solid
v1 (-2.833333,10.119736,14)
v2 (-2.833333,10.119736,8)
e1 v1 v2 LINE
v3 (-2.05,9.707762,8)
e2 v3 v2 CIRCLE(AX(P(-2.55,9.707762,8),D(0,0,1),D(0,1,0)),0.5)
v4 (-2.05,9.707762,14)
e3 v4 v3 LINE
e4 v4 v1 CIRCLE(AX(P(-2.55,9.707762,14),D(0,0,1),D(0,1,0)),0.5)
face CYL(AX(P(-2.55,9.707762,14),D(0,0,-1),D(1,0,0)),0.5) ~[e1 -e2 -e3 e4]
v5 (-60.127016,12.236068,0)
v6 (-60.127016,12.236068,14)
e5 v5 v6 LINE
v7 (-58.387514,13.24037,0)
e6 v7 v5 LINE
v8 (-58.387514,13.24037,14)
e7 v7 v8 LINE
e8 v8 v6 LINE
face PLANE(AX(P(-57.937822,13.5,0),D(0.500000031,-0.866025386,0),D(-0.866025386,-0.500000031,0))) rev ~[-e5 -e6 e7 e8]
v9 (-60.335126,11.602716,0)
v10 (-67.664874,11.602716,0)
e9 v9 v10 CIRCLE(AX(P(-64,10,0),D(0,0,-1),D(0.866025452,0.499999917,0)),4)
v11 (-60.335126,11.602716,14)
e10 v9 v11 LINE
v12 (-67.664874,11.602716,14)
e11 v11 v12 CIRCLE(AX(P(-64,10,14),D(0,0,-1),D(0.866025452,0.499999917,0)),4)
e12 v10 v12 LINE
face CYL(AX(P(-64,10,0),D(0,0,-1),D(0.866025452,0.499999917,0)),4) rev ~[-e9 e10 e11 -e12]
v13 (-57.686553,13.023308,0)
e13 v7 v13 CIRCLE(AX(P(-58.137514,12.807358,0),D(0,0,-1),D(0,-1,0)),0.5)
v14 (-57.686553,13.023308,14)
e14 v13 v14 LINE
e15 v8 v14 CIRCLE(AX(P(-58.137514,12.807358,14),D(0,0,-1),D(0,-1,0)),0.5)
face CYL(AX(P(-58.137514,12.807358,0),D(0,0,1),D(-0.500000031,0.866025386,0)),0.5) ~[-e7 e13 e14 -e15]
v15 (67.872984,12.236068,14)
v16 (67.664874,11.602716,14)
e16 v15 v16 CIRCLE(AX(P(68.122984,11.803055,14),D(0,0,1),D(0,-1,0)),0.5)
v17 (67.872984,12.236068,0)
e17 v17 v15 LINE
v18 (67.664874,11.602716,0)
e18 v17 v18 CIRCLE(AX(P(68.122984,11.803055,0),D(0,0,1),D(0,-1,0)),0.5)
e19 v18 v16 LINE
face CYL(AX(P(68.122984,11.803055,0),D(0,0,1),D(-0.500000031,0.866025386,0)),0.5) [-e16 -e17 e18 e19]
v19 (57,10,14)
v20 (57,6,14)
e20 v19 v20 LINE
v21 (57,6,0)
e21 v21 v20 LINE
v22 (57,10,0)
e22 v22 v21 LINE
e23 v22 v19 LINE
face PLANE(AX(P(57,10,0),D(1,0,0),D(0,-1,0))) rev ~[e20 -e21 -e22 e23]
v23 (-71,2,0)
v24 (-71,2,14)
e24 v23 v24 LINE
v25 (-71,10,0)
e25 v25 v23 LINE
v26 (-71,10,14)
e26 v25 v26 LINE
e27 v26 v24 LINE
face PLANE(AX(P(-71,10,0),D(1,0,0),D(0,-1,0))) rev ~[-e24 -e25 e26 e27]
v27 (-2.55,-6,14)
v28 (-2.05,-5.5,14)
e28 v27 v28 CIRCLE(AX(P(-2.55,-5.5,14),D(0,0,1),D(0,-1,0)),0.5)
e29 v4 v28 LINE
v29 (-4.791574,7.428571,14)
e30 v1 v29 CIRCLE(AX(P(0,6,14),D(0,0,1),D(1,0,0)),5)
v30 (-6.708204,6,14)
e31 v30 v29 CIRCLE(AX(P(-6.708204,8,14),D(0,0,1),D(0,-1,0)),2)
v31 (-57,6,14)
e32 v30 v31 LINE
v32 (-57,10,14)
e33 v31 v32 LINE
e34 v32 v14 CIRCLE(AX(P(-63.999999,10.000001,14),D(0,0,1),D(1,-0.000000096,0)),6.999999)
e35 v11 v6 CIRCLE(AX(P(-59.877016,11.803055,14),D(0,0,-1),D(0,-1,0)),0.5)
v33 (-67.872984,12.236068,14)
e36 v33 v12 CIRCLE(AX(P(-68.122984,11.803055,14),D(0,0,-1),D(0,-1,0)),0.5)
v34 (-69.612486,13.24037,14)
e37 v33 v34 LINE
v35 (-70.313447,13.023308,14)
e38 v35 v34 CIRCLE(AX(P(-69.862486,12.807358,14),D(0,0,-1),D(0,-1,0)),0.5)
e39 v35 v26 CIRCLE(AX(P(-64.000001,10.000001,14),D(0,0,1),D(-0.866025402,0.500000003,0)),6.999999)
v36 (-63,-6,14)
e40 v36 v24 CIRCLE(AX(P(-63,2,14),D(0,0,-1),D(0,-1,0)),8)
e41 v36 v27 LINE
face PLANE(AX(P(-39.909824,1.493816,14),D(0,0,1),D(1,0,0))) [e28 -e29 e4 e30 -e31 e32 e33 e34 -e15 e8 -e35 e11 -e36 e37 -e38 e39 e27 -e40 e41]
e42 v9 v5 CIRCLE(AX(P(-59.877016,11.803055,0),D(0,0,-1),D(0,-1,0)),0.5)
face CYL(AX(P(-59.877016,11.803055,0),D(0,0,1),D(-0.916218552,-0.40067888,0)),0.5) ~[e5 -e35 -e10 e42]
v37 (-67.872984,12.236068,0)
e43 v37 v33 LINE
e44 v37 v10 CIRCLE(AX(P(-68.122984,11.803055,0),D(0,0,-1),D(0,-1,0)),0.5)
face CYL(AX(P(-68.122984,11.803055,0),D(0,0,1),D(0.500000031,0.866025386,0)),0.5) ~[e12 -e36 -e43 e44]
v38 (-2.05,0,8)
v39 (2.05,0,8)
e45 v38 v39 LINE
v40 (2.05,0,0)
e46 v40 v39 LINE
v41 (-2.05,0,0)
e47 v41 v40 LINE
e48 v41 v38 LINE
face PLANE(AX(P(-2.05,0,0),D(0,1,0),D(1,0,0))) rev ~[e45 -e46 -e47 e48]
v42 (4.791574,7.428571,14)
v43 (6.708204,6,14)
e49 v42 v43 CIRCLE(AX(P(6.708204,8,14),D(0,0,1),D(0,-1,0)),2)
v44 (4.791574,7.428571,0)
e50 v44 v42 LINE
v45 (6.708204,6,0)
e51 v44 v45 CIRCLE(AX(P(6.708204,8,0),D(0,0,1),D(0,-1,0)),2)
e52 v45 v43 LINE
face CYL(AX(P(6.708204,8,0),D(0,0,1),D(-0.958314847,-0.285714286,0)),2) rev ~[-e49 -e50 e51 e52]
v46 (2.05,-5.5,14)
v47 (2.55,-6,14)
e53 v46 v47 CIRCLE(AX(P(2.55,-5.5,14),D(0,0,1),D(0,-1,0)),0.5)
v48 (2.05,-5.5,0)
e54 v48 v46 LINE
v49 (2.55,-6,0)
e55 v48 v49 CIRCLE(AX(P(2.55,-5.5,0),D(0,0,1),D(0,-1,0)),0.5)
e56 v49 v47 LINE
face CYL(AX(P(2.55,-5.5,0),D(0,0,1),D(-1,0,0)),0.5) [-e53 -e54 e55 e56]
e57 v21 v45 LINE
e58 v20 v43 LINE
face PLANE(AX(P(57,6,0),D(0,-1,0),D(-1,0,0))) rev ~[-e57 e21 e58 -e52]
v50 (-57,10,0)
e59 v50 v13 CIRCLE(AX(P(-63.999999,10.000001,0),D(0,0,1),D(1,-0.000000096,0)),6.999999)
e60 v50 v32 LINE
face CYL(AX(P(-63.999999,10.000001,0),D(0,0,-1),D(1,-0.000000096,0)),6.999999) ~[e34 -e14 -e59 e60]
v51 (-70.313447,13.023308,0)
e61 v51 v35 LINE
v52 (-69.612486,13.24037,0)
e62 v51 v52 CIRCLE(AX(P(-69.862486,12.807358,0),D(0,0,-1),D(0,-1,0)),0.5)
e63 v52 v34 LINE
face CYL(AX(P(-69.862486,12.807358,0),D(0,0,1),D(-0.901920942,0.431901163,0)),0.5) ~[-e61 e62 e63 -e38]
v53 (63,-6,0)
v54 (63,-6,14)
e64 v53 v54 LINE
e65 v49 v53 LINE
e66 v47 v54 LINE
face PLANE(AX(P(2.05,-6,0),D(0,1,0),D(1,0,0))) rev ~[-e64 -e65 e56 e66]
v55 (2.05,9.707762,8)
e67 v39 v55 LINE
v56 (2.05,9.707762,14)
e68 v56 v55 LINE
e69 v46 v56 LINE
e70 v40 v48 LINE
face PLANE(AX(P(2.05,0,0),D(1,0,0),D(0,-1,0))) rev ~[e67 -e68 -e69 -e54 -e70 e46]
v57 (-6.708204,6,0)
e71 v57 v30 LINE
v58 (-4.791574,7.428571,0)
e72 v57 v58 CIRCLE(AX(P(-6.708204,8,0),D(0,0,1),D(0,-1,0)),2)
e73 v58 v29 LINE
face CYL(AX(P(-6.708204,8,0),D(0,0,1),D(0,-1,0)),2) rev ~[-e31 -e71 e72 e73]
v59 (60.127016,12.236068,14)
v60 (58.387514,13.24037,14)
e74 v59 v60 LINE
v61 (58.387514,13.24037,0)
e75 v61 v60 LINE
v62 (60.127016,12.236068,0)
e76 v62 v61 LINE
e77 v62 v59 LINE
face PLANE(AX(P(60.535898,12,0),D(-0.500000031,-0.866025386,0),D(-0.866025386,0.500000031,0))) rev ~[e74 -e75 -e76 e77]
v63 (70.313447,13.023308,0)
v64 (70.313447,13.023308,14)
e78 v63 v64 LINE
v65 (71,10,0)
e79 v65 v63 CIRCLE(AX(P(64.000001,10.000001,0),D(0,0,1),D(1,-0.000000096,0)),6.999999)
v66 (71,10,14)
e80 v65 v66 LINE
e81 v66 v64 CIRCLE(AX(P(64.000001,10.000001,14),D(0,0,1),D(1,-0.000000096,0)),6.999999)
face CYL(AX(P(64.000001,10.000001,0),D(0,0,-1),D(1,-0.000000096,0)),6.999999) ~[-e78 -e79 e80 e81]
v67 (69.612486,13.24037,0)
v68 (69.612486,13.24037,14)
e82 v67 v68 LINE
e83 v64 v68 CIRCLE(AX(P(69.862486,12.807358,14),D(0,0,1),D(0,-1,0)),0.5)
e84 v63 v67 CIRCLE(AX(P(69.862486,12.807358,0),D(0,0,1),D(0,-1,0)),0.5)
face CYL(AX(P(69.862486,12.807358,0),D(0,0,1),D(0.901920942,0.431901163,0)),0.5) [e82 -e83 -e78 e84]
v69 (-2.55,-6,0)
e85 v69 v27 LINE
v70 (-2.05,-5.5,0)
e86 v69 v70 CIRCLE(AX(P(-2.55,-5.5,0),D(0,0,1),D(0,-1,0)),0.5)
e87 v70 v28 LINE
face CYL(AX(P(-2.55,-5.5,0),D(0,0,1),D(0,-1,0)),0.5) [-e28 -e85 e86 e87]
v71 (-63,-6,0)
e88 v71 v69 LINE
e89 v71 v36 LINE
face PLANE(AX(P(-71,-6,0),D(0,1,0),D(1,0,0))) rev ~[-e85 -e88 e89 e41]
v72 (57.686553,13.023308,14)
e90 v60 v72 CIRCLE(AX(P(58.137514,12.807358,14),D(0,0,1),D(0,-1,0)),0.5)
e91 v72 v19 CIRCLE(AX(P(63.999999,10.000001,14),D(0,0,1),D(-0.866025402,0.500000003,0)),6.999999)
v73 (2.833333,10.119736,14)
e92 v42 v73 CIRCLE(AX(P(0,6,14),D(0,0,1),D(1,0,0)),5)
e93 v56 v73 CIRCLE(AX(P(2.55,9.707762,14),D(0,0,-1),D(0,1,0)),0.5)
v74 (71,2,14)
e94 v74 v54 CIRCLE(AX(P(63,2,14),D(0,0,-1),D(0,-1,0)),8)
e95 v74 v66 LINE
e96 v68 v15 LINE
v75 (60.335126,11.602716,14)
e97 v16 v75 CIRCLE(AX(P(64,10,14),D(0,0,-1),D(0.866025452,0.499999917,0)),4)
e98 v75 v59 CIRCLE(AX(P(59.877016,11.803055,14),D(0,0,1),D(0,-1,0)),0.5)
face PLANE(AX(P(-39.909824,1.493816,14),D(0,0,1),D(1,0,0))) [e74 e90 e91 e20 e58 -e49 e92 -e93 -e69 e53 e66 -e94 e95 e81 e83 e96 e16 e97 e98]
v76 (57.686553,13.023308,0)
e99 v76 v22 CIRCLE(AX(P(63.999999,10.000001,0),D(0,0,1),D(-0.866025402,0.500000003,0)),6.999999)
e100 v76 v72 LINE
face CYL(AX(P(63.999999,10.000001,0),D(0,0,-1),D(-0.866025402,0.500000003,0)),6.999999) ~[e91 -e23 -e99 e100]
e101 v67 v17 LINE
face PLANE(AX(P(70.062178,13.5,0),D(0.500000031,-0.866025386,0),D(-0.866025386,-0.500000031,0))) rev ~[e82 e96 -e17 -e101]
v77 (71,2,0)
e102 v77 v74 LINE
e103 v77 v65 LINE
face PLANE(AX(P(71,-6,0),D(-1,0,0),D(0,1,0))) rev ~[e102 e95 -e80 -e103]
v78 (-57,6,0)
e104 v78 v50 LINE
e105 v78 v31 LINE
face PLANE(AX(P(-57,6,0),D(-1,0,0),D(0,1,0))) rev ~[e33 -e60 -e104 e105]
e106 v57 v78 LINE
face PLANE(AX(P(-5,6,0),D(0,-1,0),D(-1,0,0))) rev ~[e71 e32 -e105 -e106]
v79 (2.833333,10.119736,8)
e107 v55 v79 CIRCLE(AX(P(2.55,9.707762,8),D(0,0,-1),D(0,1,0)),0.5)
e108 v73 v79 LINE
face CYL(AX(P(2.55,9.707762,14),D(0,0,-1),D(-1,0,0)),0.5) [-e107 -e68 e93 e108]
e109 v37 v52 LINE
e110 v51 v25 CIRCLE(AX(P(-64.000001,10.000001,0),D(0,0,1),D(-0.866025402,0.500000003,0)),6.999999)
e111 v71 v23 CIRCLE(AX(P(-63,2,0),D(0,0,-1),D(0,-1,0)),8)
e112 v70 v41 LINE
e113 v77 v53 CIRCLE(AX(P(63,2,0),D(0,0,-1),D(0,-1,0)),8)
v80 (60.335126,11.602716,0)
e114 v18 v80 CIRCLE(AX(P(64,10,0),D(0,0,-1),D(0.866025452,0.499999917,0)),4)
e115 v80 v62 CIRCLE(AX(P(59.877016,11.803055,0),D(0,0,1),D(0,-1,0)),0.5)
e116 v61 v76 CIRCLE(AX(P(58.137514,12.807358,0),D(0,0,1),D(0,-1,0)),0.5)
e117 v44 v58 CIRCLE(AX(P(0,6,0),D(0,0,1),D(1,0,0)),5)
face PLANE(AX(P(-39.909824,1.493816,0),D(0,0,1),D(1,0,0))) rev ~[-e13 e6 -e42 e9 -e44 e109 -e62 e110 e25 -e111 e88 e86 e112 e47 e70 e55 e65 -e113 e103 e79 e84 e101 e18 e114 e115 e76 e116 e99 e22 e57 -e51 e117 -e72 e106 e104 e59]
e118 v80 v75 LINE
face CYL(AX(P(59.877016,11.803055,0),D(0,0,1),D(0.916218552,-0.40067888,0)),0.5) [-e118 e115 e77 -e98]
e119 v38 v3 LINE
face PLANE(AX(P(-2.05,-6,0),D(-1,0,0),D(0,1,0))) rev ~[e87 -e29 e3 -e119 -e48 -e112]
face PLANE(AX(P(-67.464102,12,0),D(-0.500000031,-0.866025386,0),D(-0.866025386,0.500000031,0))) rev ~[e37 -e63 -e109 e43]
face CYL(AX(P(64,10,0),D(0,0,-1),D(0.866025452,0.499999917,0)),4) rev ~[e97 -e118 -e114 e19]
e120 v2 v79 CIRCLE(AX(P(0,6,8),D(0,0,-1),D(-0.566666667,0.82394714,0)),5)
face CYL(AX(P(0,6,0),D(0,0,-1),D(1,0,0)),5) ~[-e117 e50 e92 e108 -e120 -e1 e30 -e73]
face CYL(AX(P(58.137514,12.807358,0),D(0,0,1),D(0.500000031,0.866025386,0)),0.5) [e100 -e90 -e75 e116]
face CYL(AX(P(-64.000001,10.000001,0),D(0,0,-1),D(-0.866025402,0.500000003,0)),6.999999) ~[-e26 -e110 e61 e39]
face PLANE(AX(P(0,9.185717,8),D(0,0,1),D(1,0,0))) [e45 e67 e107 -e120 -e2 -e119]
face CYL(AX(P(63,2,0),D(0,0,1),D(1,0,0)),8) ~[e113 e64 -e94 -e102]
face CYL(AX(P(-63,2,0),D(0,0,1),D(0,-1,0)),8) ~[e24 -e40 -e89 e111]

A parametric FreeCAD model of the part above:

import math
import FreeCAD as App
import Part
import Sketcher
from FreeCAD import Vector
Q = App.Units.Quantity


def edges_at(feature, points):
    """Names of the edges that pass closest to the given points."""
    edges = feature.Shape.Edges
    near = lambda p: min(range(len(edges)), key=lambda i: edges[i].distToShape(Part.Vertex(*p))[0])
    return sorted({f"Edge{near(p) + 1}" for p in points})

doc = App.newDocument("Part")
body = doc.addObject("PartDesign::Body", "Body")

# Sketch on XY plane
sketch1 = doc.addObject("Sketcher::SketchObject", "Sketch")
body.addObject(sketch1)
sketch1.AttachmentSupport = (doc.XY_Plane, [""])
sketch1.MapMode = "FlatFace"
sketch1.addGeometry([
    Part.LineSegment(Vector(-71, -6, 0), Vector(-2.05, -6, 0)),  # 0
    Part.LineSegment(Vector(-2.05, -6, 0), Vector(-2.05, 0, 0)),  # 1
    Part.LineSegment(Vector(-2.05, 0, 0), Vector(2.05, 0, 0)),  # 2
    Part.LineSegment(Vector(2.05, 0, 0), Vector(2.05, -6, 0)),  # 3
    Part.LineSegment(Vector(2.05, -6, 0), Vector(71, -6, 0)),  # 4
    Part.LineSegment(Vector(71, -6, 0), Vector(71, 10, 0)),  # 5
    Part.ArcOfCircle(Part.Circle(Vector(64.000001, 10.000001, 0), Vector(0, 0, 1), 6.999999), math.radians(-0.000006), math.radians(30)),  # 6
    Part.LineSegment(Vector(70.062178, 13.5, 0), Vector(67.464102, 12, 0)),  # 7
    Part.ArcOfCircle(Part.Circle(Vector(64, 10, 0), Vector(0, 0, 1), 4), math.radians(150.000006), math.radians(389.999994)),  # 8
    Part.LineSegment(Vector(60.535898, 12, 0), Vector(57.937822, 13.5, 0)),  # 9
    Part.ArcOfCircle(Part.Circle(Vector(63.999999, 10.000001, 0), Vector(0, 0, 1), 6.999999), math.radians(150), math.radians(180.000006)),  # 10
    Part.LineSegment(Vector(57, 10, 0), Vector(57, 6, 0)),  # 11
    Part.LineSegment(Vector(57, 6, 0), Vector(5, 6, 0)),  # 12
    Part.ArcOfCircle(Part.Circle(Vector(0, 6, 0), Vector(0, 0, 1), 5), math.radians(0), math.radians(180)),  # 13
    Part.LineSegment(Vector(-5, 6, 0), Vector(-57, 6, 0)),  # 14
    Part.LineSegment(Vector(-57, 6, 0), Vector(-57, 10, 0)),  # 15
    Part.ArcOfCircle(Part.Circle(Vector(-63.999999, 10.000001, 0), Vector(0, 0, 1), 6.999999), math.radians(-0.000006), math.radians(30)),  # 16
    Part.LineSegment(Vector(-57.937822, 13.5, 0), Vector(-60.535898, 12, 0)),  # 17
    Part.ArcOfCircle(Part.Circle(Vector(-64, 10, 0), Vector(0, 0, 1), 4), math.radians(150.000006), math.radians(389.999994)),  # 18
    Part.LineSegment(Vector(-67.464102, 12, 0), Vector(-70.062178, 13.5, 0)),  # 19
    Part.ArcOfCircle(Part.Circle(Vector(-64.000001, 10.000001, 0), Vector(0, 0, 1), 6.999999), math.radians(150), math.radians(180.000006)),  # 20
    Part.LineSegment(Vector(-71, 10, 0), Vector(-71, -6, 0)),  # 21
], False)
sketch1.addConstraint([
    Sketcher.Constraint("Coincident", 0, 2, 1, 1),
    Sketcher.Constraint("Coincident", 1, 2, 2, 1),
    Sketcher.Constraint("Coincident", 2, 2, 3, 1),
    Sketcher.Constraint("Coincident", 3, 2, 4, 1),
    Sketcher.Constraint("Coincident", 4, 2, 5, 1),
    Sketcher.Constraint("Tangent", 5, 2, 6, 1),
    Sketcher.Constraint("Coincident", 6, 2, 7, 1),
    Sketcher.Constraint("Coincident", 7, 2, 8, 2),
    Sketcher.Constraint("Coincident", 8, 1, 9, 1),
    Sketcher.Constraint("Coincident", 9, 2, 10, 1),
    Sketcher.Constraint("Tangent", 10, 2, 11, 1),
    Sketcher.Constraint("Coincident", 11, 2, 12, 1),
    Sketcher.Constraint("Coincident", 12, 2, 13, 1),
    Sketcher.Constraint("Coincident", 13, 2, 14, 1),
    Sketcher.Constraint("Coincident", 14, 2, 15, 1),
    Sketcher.Constraint("Tangent", 15, 2, 16, 1),
    Sketcher.Constraint("Coincident", 16, 2, 17, 1),
    Sketcher.Constraint("Coincident", 17, 2, 18, 2),
    Sketcher.Constraint("Coincident", 18, 1, 19, 1),
    Sketcher.Constraint("Coincident", 19, 2, 20, 1),
    Sketcher.Constraint("Tangent", 20, 2, 21, 1),
    Sketcher.Constraint("Coincident", 21, 2, 0, 1),
    Sketcher.Constraint("Horizontal", 0),
    Sketcher.Constraint("Vertical", 1),
    Sketcher.Constraint("Horizontal", 2),
    Sketcher.Constraint("Vertical", 3),
    Sketcher.Constraint("Horizontal", 4),
    Sketcher.Constraint("Vertical", 5),
    Sketcher.Constraint("Vertical", 11),
    Sketcher.Constraint("Horizontal", 12),
    Sketcher.Constraint("Horizontal", 14),
    Sketcher.Constraint("Vertical", 15),
    Sketcher.Constraint("Vertical", 21),
    Sketcher.Constraint("Coincident", 8, 3, 6, 3),
    Sketcher.Constraint("Coincident", 10, 3, 6, 3),
    Sketcher.Constraint("Coincident", 18, 3, 16, 3),
    Sketcher.Constraint("Coincident", 20, 3, 16, 3),
    Sketcher.Constraint("Equal", 6, 10),
    Sketcher.Constraint("Equal", 10, 16),
    Sketcher.Constraint("Equal", 8, 18),
    Sketcher.Constraint("Equal", 16, 20),
    Sketcher.Constraint("Symmetric", 1, 2, 2, 2, -1, 1),
    Sketcher.Constraint("Symmetric", 6, 3, 16, 3, -2),
    Sketcher.Constraint("Symmetric", 12, 2, 13, 2, -2),
    Sketcher.Constraint("Parallel", 7, 17),
    Sketcher.Constraint("Parallel", 9, 19),
    Sketcher.Constraint("Horizontal", 0, 2, 3, 2),
    Sketcher.Constraint("Horizontal", 7, 2, 8, 1),
    Sketcher.Constraint("Horizontal", 6, 2, 9, 2),
    Sketcher.Constraint("Horizontal", 13, 3, 11, 2),
    Sketcher.Constraint("Horizontal", 9, 2, 16, 2),
    Sketcher.Constraint("Horizontal", 17, 2, 18, 1),
    Sketcher.Constraint("Radius", 6, 6.999999),
    Sketcher.Constraint("Radius", 8, 4.0),
    Sketcher.Constraint("Radius", 13, 5.0),
    Sketcher.Constraint("DistanceX", 12, 2, 12, 1, 52.0),
    Sketcher.Constraint("DistanceY", 1, 1, 1, 2, 6.0),
    Sketcher.Constraint("DistanceY", 5, 1, 5, 2, 16.0),
    Sketcher.Constraint("DistanceY", 11, 2, 11, 1, 4.0),
    Sketcher.Constraint("Angle", 7, Q("-149.999998 deg")),
    Sketcher.Constraint("DistanceX", 2, 1, 2, 2, 4.1),
    Sketcher.Constraint("DistanceY", -1, 1, 7, 2, 12.0),
])
pad1 = doc.addObject("PartDesign::Pad", "Pad")
body.addObject(pad1)
pad1.Profile = sketch1
pad1.Length = 14

# Sketch on XY plane
sketch2 = doc.addObject("Sketcher::SketchObject", "Sketch001")
body.addObject(sketch2)
sketch2.AttachmentSupport = (doc.XY_Plane, [""])
sketch2.MapMode = "FlatFace"
sketch2.AttachmentOffset = App.Placement(Vector(0, 0, 14), App.Rotation())
sketch2.addGeometry([
    Part.LineSegment(Vector(-2.05, 18.371434, 0), Vector(-2.05, 0, 0)),
    Part.LineSegment(Vector(-2.05, 0, 0), Vector(2.05, 0, 0)),
    Part.LineSegment(Vector(2.05, 0, 0), Vector(2.05, 18.371434, 0)),
    Part.LineSegment(Vector(2.05, 18.371434, 0), Vector(-2.05, 18.371434, 0)),
], False)
sketch2.addConstraint([
    Sketcher.Constraint("Coincident", 0, 2, 1, 1),
    Sketcher.Constraint("Coincident", 1, 2, 2, 1),
    Sketcher.Constraint("Coincident", 2, 2, 3, 1),
    Sketcher.Constraint("Coincident", 3, 2, 0, 1),
    Sketcher.Constraint("Vertical", 0),
    Sketcher.Constraint("Horizontal", 1),
    Sketcher.Constraint("Vertical", 2),
    Sketcher.Constraint("Horizontal", 3),
    Sketcher.Constraint("Symmetric", 0, 2, 1, 2, -1, 1),
    Sketcher.Constraint("DistanceX", 1, 1, 1, 2, 4.1),
    Sketcher.Constraint("DistanceY", 0, 2, 0, 1, 18.371435),
])
pocket1 = doc.addObject("PartDesign::Pocket", "Pocket")
body.addObject(pocket1)
pocket1.Profile = sketch2
pocket1.Length = 6
doc.recompute()

fillet = doc.addObject("PartDesign::Fillet", "Fillet")
body.addObject(fillet)
fillet.Base = (pocket1, edges_at(pocket1, [(71, -6, 7), (-71, -6, 7)]))
fillet.Radius = 8
doc.recompute()

fillet2 = doc.addObject("PartDesign::Fillet", "Fillet001")
body.addObject(fillet2)
fillet2.Base = (fillet, edges_at(fillet, [
    (2.05, -6, 7),
    (-2.05, -6, 7),
    (-2.05, 10.56, 11),
    (2.05, 10.56, 11),
    (-67.464, 12, 7),
    (-60.536, 12, 7),
    (60.536, 12, 7),
    (67.464, 12, 7),
    (70.062, 13.5, 7),
    (57.938, 13.5, 7),
    (-57.938, 13.5, 7),
    (-70.062, 13.5, 7),
]))
fillet2.Radius = 0.5
doc.recompute()

fillet3 = doc.addObject("PartDesign::Fillet", "Fillet002")
body.addObject(fillet3)
fillet3.Base = (fillet2, edges_at(fillet2, [(-5, 6, 7), (5, 6, 7)]))
fillet3.Radius = 2

doc.recompute()
